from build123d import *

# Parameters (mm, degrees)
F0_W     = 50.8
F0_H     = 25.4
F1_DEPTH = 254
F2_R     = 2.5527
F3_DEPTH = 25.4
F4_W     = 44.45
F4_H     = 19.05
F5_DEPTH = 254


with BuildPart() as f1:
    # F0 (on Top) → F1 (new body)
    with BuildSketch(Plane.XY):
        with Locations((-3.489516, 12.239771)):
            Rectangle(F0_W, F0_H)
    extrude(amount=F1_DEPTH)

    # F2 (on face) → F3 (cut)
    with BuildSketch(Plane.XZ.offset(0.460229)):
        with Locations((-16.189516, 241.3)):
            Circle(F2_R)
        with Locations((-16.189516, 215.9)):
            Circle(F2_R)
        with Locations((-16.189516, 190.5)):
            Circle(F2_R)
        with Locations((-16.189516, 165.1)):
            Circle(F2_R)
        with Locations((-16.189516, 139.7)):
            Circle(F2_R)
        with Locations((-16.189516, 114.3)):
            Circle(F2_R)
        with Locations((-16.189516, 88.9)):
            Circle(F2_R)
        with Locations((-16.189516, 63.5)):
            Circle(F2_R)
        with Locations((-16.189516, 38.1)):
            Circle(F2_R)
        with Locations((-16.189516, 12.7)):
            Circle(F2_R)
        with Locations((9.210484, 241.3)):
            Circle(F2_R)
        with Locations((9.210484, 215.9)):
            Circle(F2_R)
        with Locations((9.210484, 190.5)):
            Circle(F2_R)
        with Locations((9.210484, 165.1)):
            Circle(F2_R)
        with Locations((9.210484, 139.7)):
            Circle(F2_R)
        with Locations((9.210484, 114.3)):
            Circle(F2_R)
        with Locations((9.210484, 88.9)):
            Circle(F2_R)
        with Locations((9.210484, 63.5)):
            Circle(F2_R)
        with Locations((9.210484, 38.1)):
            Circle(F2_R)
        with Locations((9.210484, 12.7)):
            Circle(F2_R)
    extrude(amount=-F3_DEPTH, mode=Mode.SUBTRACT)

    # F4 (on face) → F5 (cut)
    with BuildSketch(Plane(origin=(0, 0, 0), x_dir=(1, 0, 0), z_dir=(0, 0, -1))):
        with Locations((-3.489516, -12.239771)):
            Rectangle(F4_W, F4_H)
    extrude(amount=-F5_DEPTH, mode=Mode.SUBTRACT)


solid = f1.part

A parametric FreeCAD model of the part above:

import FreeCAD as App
import Part
import Sketcher
Q = App.Units.Quantity


def add_polygon(sketch, points):
    """Adds a closed chain of lines whose ends are joined by coincident constraints."""
    first, n = sketch.GeometryCount, len(points)
    for a, b in zip(points, points[1:] + points[:1]):
        sketch.addGeometry(Part.LineSegment(App.Vector(*a, 0), App.Vector(*b, 0)), False)
    for i in range(n):
        sketch.addConstraint(Sketcher.Constraint("Coincident", first + i, 2, first + (i + 1) % n, 1))

doc = App.newDocument("Part")
body = doc.addObject("PartDesign::Body", "Body")

# Sketch on XY plane
sketch1 = body.newObject("Sketcher::SketchObject", "Sketch")
sketch1.AttachmentSupport = (doc.getObject("XY_Plane"), [""])
sketch1.MapMode = "FlatFace"
add_polygon(sketch1, [(-29, 25), (-29, 0), (22, 0), (22, 25)])  # lines 0-3
sketch1.addConstraint(Sketcher.Constraint("Vertical", 0))
sketch1.addConstraint(Sketcher.Constraint("Horizontal", 1))
sketch1.addConstraint(Sketcher.Constraint("Vertical", 2))
sketch1.addConstraint(Sketcher.Constraint("Horizontal", 3))
sketch1.addConstraint(Sketcher.Constraint("DistanceX", 1, 1, 1, 2, Q("2 in")))
sketch1.addConstraint(Sketcher.Constraint("DistanceY", 0, 2, 0, 1, Q("1 in")))
sketch1.addConstraint(Sketcher.Constraint("DistanceY", 0, 2, -1, 1, 0.460229))
sketch1.addConstraint(Sketcher.Constraint("DistanceX", 0, 2, -1, 1, 28.889516))
pad1 = body.newObject("PartDesign::Pad", "Pad")
pad1.Profile = sketch1
pad1.Length = Q("10 in")

# Sketch on XZ plane
sketch2 = body.newObject("Sketcher::SketchObject", "Sketch001")
sketch2.AttachmentSupport = (doc.getObject("XZ_Plane"), [""])
sketch2.MapMode = "FlatFace"
sketch2.AttachmentOffset = App.Placement(App.Vector(0, 0, 0.460229), App.Rotation())
sketch2.addGeometry(Part.Circle(App.Vector(-16.2, 241.3, 0), App.Vector(0, 0, 1), 2.6), False)
sketch2.addGeometry(Part.Circle(App.Vector(-16.2, 215.9, 0), App.Vector(0, 0, 1), 2.6), False)
sketch2.addGeometry(Part.Circle(App.Vector(-16.2, 190.5, 0), App.Vector(0, 0, 1), 2.6), False)
sketch2.addGeometry(Part.Circle(App.Vector(-16.2, 165.1, 0), App.Vector(0, 0, 1), 2.6), False)
sketch2.addGeometry(Part.Circle(App.Vector(-16.2, 139.7, 0), App.Vector(0, 0, 1), 2.6), False)
sketch2.addGeometry(Part.Circle(App.Vector(-16.2, 114.3, 0), App.Vector(0, 0, 1), 2.6), False)
sketch2.addGeometry(Part.Circle(App.Vector(-16.2, 88.9, 0), App.Vector(0, 0, 1), 2.6), False)
sketch2.addGeometry(Part.Circle(App.Vector(-16.2, 63.5, 0), App.Vector(0, 0, 1), 2.6), False)
sketch2.addGeometry(Part.Circle(App.Vector(-16.2, 38.1, 0), App.Vector(0, 0, 1), 2.6), False)
sketch2.addGeometry(Part.Circle(App.Vector(-16.2, 12.7, 0), App.Vector(0, 0, 1), 2.6), False)
sketch2.addGeometry(Part.Circle(App.Vector(9.2, 241.3, 0), App.Vector(0, 0, 1), 2.6), False)
sketch2.addGeometry(Part.Circle(App.Vector(9.2, 215.9, 0), App.Vector(0, 0, 1), 2.6), False)
sketch2.addGeometry(Part.Circle(App.Vector(9.2, 190.5, 0), App.Vector(0, 0, 1), 2.6), False)
sketch2.addGeometry(Part.Circle(App.Vector(9.2, 165.1, 0), App.Vector(0, 0, 1), 2.6), False)
sketch2.addGeometry(Part.Circle(App.Vector(9.2, 139.7, 0), App.Vector(0, 0, 1), 2.6), False)
sketch2.addGeometry(Part.Circle(App.Vector(9.2, 114.3, 0), App.Vector(0, 0, 1), 2.6), False)
sketch2.addGeometry(Part.Circle(App.Vector(9.2, 88.9, 0), App.Vector(0, 0, 1), 2.6), False)
sketch2.addGeometry(Part.Circle(App.Vector(9.2, 63.5, 0), App.Vector(0, 0, 1), 2.6), False)
sketch2.addGeometry(Part.Circle(App.Vector(9.2, 38.1, 0), App.Vector(0, 0, 1), 2.6), False)
sketch2.addGeometry(Part.Circle(App.Vector(9.2, 12.7, 0), App.Vector(0, 0, 1), 2.6), False)
sketch2.addConstraint(Sketcher.Constraint("Equal", 0, 1))
sketch2.addConstraint(Sketcher.Constraint("Equal", 1, 2))
sketch2.addConstraint(Sketcher.Constraint("Equal", 2, 3))
sketch2.addConstraint(Sketcher.Constraint("Equal", 3, 4))
sketch2.addConstraint(Sketcher.Constraint("Equal", 4, 5))
sketch2.addConstraint(Sketcher.Constraint("Equal", 5, 6))
sketch2.addConstraint(Sketcher.Constraint("Equal", 6, 7))
sketch2.addConstraint(Sketcher.Constraint("Equal", 7, 8))
sketch2.addConstraint(Sketcher.Constraint("Equal", 8, 9))
sketch2.addConstraint(Sketcher.Constraint("Equal", 9, 10))
sketch2.addConstraint(Sketcher.Constraint("Equal", 10, 11))
sketch2.addConstraint(Sketcher.Constraint("Equal", 11, 12))
sketch2.addConstraint(Sketcher.Constraint("Equal", 12, 13))
sketch2.addConstraint(Sketcher.Constraint("Equal", 13, 14))
sketch2.addConstraint(Sketcher.Constraint("Equal", 14, 15))
sketch2.addConstraint(Sketcher.Constraint("Equal", 15, 16))
sketch2.addConstraint(Sketcher.Constraint("Equal", 16, 17))
sketch2.addConstraint(Sketcher.Constraint("Equal", 17, 18))
sketch2.addConstraint(Sketcher.Constraint("Equal", 18, 19))
sketch2.addConstraint(Sketcher.Constraint("Horizontal", 0, 3, 10, 3))
sketch2.addConstraint(Sketcher.Constraint("Horizontal", 1, 3, 11, 3))
sketch2.addConstraint(Sketcher.Constraint("Horizontal", 2, 3, 12, 3))
sketch2.addConstraint(Sketcher.Constraint("Horizontal", 3, 3, 13, 3))
sketch2.addConstraint(Sketcher.Constraint("Horizontal", 4, 3, 14, 3))
sketch2.addConstraint(Sketcher.Constraint("Horizontal", 5, 3, 15, 3))
sketch2.addConstraint(Sketcher.Constraint("Horizontal", 6, 3, 16, 3))
sketch2.addConstraint(Sketcher.Constraint("Horizontal", 7, 3, 17, 3))
sketch2.addConstraint(Sketcher.Constraint("Horizontal", 8, 3, 18, 3))
sketch2.addConstraint(Sketcher.Constraint("Horizontal", 9, 3, 19, 3))
sketch2.addConstraint(Sketcher.Constraint("Vertical", 0, 3, 1, 3))
sketch2.addConstraint(Sketcher.Constraint("Vertical", 1, 3, 2, 3))
sketch2.addConstraint(Sketcher.Constraint("Vertical", 2, 3, 3, 3))
sketch2.addConstraint(Sketcher.Constraint("Vertical", 3, 3, 4, 3))
sketch2.addConstraint(Sketcher.Constraint("Vertical", 4, 3, 5, 3))
sketch2.addConstraint(Sketcher.Constraint("Vertical", 5, 3, 6, 3))
sketch2.addConstraint(Sketcher.Constraint("Vertical", 6, 3, 7, 3))
sketch2.addConstraint(Sketcher.Constraint("Vertical", 7, 3, 8, 3))
sketch2.addConstraint(Sketcher.Constraint("Vertical", 8, 3, 9, 3))
sketch2.addConstraint(Sketcher.Constraint("Vertical", 10, 3, 11, 3))
sketch2.addConstraint(Sketcher.Constraint("Vertical", 11, 3, 12, 3))
sketch2.addConstraint(Sketcher.Constraint("Vertical", 12, 3, 13, 3))
sketch2.addConstraint(Sketcher.Constraint("Vertical", 13, 3, 14, 3))
sketch2.addConstraint(Sketcher.Constraint("Vertical", 14, 3, 15, 3))
sketch2.addConstraint(Sketcher.Constraint("Vertical", 15, 3, 16, 3))
sketch2.addConstraint(Sketcher.Constraint("Vertical", 16, 3, 17, 3))
sketch2.addConstraint(Sketcher.Constraint("Vertical", 17, 3, 18, 3))
sketch2.addConstraint(Sketcher.Constraint("Vertical", 18, 3, 19, 3))
sketch2.addConstraint(Sketcher.Constraint("Diameter", 0, Q("0.201 in")))
sketch2.addConstraint(Sketcher.Constraint("DistanceY", 1, 3, 0, 3, Q("1 in")))
sketch2.addConstraint(Sketcher.Constraint("DistanceY", 2, 3, 1, 3, Q("1 in")))
sketch2.addConstraint(Sketcher.Constraint("DistanceY", 3, 3, 2, 3, Q("1 in")))
sketch2.addConstraint(Sketcher.Constraint("DistanceY", 4, 3, 3, 3, Q("1 in")))
sketch2.addConstraint(Sketcher.Constraint("DistanceY", 5, 3, 4, 3, Q("1 in")))
sketch2.addConstraint(Sketcher.Constraint("DistanceY", 6, 3, 5, 3, Q("1 in")))
sketch2.addConstraint(Sketcher.Constraint("DistanceY", 7, 3, 6, 3, Q("1 in")))
sketch2.addConstraint(Sketcher.Constraint("DistanceY", 8, 3, 7, 3, Q("1 in")))
sketch2.addConstraint(Sketcher.Constraint("DistanceY", 9, 3, 8, 3, Q("1 in")))
sketch2.addConstraint(Sketcher.Constraint("DistanceX", 0, 3, 10, 3, Q("1 in")))
sketch2.addConstraint(Sketcher.Constraint("DistanceY", -1, 1, 0, 3, Q("9.5 in")))
sketch2.addConstraint(Sketcher.Constraint("DistanceX", 0, 3, -1, 1, 16.189516))
pocket1 = body.newObject("PartDesign::Pocket", "Pocket")
pocket1.Profile = sketch2
pocket1.Length = Q("1 in")

# Sketch on XY plane
sketch3 = body.newObject("Sketcher::SketchObject", "Sketch002")
sketch3.AttachmentSupport = (doc.getObject("XY_Plane"), [""])
sketch3.MapMode = "FlatFace"
add_polygon(sketch3, [(-26, 3), (-26, 22), (19, 22), (19, 3)])  # lines 0-3
sketch3.addConstraint(Sketcher.Constraint("Vertical", 0))
sketch3.addConstraint(Sketcher.Constraint("Horizontal", 1))
sketch3.addConstraint(Sketcher.Constraint("Vertical", 2))
sketch3.addConstraint(Sketcher.Constraint("Horizontal", 3))
sketch3.addConstraint(Sketcher.Constraint("DistanceX", 1, 1, 1, 2, Q("1.75 in")))
sketch3.addConstraint(Sketcher.Constraint("DistanceY", 0, 1, 0, 2, Q("0.75 in")))
sketch3.addConstraint(Sketcher.Constraint("DistanceY", -1, 1, 0, 2, 21.764771))
sketch3.addConstraint(Sketcher.Constraint("DistanceX", 0, 2, -1, 1, 25.714516))
pocket2 = body.newObject("PartDesign::Pocket", "Pocket001")
pocket2.Profile = sketch3
pocket2.Length = Q("10 in")
pocket2.Reversed = True

doc.recompute()
